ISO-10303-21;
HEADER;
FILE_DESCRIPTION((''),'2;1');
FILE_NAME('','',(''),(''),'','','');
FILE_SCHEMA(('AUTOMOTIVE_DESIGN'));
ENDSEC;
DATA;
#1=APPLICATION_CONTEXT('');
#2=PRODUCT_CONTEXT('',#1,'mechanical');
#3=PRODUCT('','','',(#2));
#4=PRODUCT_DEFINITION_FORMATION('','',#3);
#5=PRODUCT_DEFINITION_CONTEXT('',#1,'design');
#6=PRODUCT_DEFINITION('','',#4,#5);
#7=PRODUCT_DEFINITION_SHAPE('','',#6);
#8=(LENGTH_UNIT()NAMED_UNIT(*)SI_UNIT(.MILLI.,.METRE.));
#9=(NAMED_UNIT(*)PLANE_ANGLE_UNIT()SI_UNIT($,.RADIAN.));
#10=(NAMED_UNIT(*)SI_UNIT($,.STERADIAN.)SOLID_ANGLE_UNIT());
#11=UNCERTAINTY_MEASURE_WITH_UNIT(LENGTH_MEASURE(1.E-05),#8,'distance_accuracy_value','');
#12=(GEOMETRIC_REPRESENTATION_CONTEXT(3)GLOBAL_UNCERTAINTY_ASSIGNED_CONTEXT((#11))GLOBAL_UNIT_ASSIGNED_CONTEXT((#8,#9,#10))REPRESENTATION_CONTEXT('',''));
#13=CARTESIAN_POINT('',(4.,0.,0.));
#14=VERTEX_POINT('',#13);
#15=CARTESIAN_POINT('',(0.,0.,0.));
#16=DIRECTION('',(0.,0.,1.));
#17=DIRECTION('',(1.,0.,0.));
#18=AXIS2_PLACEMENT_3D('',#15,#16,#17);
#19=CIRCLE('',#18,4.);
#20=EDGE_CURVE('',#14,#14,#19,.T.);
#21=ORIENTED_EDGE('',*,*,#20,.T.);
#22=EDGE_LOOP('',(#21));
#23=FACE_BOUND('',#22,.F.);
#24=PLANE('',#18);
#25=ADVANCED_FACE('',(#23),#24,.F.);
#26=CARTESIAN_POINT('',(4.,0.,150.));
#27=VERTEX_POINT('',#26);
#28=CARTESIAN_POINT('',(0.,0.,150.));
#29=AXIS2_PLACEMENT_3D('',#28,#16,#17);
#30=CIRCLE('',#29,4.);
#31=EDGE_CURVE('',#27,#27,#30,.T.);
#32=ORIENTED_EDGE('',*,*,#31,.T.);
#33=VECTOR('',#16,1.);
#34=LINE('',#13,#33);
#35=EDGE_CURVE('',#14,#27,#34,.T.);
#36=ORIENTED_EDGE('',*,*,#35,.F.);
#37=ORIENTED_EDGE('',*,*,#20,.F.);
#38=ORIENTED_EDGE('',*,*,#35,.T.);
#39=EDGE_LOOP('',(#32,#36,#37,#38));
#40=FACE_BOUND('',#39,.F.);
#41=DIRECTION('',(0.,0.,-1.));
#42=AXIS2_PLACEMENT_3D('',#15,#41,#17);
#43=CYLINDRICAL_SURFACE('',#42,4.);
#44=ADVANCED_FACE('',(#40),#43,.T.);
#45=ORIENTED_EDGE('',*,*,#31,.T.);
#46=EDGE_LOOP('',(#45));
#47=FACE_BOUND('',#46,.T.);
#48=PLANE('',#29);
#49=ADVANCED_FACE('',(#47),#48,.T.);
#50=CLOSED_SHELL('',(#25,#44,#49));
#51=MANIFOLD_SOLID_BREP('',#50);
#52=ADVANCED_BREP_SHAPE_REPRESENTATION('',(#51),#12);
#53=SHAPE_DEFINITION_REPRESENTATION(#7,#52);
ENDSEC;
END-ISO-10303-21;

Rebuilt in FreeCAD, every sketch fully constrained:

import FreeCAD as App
import Part
import Sketcher

V = App.Vector

doc = App.newDocument("Part")
body = doc.addObject("PartDesign::Body", "Body")

# Sketch on XY plane
sketch1 = body.newObject("Sketcher::SketchObject", "Sketch")
sketch1.AttachmentSupport = (doc.getObject("XY_Plane"), [""])
sketch1.MapMode = "FlatFace"
sketch1.addGeometry(Part.Circle(V(0, 0, 0), V(0, 0, 1), 4), False)
sketch1.addConstraint([
    Sketcher.Constraint("Coincident", 0, 3, -1, 1),
    Sketcher.Constraint("Diameter", 0, 8.0),
])
pad1 = body.newObject("PartDesign::Pad", "Pad")
pad1.Profile = sketch1
pad1.Length = 150

doc.recompute()
